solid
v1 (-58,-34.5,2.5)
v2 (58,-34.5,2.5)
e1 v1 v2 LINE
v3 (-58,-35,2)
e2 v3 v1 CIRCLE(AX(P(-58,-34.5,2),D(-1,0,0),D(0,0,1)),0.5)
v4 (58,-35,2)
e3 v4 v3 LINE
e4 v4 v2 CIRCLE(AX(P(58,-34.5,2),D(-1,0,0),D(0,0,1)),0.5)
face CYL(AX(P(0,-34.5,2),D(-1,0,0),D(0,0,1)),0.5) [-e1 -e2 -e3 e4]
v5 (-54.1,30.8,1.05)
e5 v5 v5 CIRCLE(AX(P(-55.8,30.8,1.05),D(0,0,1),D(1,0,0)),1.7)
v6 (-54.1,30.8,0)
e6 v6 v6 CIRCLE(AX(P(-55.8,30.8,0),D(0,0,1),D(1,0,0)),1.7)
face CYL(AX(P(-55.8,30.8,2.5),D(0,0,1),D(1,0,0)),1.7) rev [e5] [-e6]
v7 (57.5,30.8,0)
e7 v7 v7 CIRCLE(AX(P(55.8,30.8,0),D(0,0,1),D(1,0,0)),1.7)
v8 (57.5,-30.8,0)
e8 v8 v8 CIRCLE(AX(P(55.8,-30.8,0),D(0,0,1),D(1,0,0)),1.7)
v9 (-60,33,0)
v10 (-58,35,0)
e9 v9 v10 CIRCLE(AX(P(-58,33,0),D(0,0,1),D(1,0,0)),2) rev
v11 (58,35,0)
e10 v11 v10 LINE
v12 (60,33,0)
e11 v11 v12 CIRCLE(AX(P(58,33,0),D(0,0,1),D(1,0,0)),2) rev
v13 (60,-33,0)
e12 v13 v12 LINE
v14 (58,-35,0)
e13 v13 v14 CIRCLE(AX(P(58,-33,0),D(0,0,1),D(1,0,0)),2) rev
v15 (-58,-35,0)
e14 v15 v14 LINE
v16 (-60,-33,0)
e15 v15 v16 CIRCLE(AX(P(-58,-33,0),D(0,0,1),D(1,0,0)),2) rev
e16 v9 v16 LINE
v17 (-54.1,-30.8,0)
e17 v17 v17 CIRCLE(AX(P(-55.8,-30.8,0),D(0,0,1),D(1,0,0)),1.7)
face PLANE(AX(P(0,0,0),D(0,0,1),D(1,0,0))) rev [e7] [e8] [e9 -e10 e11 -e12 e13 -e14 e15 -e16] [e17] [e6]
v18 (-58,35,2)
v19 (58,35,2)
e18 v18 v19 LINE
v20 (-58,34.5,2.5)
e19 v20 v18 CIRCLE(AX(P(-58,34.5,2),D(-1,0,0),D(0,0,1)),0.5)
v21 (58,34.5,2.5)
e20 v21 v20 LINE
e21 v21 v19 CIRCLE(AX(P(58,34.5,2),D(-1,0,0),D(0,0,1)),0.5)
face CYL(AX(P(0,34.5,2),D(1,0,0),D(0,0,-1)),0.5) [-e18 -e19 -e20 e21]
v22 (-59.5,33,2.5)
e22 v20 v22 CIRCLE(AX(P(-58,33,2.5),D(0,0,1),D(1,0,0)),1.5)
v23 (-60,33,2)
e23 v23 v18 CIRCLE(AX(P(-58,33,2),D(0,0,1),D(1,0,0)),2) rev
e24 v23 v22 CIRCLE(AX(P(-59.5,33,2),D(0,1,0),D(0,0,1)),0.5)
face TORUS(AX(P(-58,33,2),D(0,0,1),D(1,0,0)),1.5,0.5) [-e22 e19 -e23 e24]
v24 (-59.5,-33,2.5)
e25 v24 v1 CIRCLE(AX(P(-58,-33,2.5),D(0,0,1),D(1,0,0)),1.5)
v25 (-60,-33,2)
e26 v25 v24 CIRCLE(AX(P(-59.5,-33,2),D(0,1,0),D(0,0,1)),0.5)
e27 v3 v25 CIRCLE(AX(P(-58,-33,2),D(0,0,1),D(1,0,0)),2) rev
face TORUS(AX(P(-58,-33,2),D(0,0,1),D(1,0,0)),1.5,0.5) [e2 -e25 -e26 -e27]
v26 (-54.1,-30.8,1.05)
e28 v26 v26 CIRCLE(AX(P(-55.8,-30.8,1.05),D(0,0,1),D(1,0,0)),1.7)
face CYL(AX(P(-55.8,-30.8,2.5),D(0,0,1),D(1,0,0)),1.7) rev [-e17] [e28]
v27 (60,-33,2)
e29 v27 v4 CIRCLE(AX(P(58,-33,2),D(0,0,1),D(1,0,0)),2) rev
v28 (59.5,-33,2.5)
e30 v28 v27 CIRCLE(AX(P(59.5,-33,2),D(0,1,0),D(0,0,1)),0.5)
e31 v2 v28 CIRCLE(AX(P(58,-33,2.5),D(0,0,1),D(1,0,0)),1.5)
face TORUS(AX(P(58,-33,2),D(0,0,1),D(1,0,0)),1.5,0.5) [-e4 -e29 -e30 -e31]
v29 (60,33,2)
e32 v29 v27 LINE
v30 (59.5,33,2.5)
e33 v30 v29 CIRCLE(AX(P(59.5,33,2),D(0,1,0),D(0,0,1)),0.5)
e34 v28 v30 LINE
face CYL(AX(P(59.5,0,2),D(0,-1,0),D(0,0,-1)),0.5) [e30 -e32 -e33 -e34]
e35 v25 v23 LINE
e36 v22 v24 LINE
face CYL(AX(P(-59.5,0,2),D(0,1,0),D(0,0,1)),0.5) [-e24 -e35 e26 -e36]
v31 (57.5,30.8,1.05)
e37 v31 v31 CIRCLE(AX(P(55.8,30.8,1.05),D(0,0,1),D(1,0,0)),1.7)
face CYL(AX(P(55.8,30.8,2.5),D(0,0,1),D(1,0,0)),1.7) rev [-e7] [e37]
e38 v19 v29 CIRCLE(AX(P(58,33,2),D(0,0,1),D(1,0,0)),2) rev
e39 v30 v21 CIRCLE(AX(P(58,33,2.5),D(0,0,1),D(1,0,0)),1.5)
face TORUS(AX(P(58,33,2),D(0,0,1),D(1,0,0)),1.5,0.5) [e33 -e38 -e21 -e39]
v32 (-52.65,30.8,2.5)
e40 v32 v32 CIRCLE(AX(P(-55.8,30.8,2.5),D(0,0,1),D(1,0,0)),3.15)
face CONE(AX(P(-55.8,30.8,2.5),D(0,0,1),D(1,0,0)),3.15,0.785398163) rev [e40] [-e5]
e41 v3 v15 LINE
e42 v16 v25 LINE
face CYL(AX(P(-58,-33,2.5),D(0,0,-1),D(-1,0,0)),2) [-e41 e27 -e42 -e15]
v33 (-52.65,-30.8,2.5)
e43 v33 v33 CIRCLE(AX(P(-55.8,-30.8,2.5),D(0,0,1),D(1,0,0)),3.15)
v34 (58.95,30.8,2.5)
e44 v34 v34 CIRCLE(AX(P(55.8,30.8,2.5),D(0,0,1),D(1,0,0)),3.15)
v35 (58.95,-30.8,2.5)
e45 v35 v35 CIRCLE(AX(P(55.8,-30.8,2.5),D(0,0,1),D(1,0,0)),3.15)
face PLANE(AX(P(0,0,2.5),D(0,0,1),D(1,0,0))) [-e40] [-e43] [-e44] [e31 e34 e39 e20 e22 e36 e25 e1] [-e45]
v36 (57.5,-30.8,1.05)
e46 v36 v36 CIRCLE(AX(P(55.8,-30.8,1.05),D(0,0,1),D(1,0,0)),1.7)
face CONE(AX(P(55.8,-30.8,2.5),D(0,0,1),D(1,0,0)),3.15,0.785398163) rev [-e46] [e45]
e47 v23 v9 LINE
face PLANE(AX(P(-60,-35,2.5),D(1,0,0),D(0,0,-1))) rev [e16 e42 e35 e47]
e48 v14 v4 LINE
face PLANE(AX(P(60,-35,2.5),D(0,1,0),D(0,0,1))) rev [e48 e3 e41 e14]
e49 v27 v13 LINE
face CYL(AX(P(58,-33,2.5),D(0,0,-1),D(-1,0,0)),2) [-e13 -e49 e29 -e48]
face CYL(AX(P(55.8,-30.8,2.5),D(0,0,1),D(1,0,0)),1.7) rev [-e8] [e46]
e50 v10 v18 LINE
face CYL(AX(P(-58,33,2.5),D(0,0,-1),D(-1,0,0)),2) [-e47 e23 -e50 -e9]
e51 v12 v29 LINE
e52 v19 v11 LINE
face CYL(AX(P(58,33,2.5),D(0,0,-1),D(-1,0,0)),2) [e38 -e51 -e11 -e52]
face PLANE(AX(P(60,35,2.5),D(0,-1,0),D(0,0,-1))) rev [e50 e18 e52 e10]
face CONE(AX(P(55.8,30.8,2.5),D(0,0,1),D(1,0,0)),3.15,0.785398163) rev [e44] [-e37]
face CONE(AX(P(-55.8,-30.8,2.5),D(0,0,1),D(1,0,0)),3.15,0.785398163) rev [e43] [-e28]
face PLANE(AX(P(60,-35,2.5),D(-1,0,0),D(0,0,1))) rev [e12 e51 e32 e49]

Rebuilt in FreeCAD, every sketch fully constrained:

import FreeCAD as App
import Part
import Sketcher

V = App.Vector
Q = App.Units.Quantity


def edges_at(feature, points):
    """Names of the edges that pass closest to the given points."""
    edges = feature.Shape.Edges
    near = lambda p: min(range(len(edges)), key=lambda i: edges[i].distToShape(Part.Vertex(*p))[0])
    return sorted({f"Edge{near(p) + 1}" for p in points})


def add_polygon(sketch, points):
    """Adds a closed chain of lines whose ends are joined by coincident constraints."""
    first, n = sketch.GeometryCount, len(points)
    for a, b in zip(points, points[1:] + points[:1]):
        sketch.addGeometry(Part.LineSegment(App.Vector(*a, 0), App.Vector(*b, 0)), False)
    for i in range(n):
        sketch.addConstraint(Sketcher.Constraint("Coincident", first + i, 2, first + (i + 1) % n, 1))

doc = App.newDocument("Part")
params = doc.addObject("Spreadsheet::Sheet", "Params")
for row, (alias, value) in enumerate([
    ("sketch1_width", "120 mm"),
    ("sketch1_height", "70 mm"),
    ("pad1_length", "2.5 mm"),
    ("fillet_radius", "2 mm"),
    ("sketch2_diameter", "3.4 mm"),
    ("hole_diameter", "3.4 mm"),
    ("hole_depth", "10 mm"),
    ("hole_csink_diameter", "6.3 mm"),
    ("fillet2_radius", "0.5 mm"),
], start=1):
    params.set(f"A{row}", alias)
    params.set(f"B{row}", "=" + value)
    params.setAlias(f"B{row}", alias)

body = doc.addObject("PartDesign::Body", "Body")

# Sketch on XY plane
sketch1 = body.newObject("Sketcher::SketchObject", "Sketch")
sketch1.AttachmentSupport = (doc.getObject("XY_Plane"), [""])
sketch1.MapMode = "FlatFace"
add_polygon(sketch1, [(-60, 35), (-60, -35), (60, -35), (60, 35)])  # lines 0-3
sketch1.addConstraint([
    Sketcher.Constraint("Vertical", 0),
    Sketcher.Constraint("Horizontal", 1),
    Sketcher.Constraint("Vertical", 2),
    Sketcher.Constraint("Horizontal", 3),
    Sketcher.Constraint("Symmetric", 0, 2, 2, 2, -1, 1),
    Sketcher.Constraint("DistanceX", 1, 1, 1, 2, Q("120 mm")),
    Sketcher.Constraint("DistanceY", 0, 2, 0, 1, Q("70 mm")),
])
sketch1.setExpression("Constraints[9]", "Params.sketch1_width")
sketch1.setExpression("Constraints[10]", "Params.sketch1_height")
pad1 = body.newObject("PartDesign::Pad", "Pad")
pad1.Profile = sketch1
pad1.setExpression("Length", "Params.pad1_length")
doc.recompute()

fillet = body.newObject("PartDesign::Fillet", "Fillet")
fillet.Base = (pad1, edges_at(pad1, [
    (-60, 35, 1.25),
    (60, 35, 1.25),
    (60, -35, 1.25),
    (-60, -35, 1.25),
]))
fillet.setExpression("Radius", "Params.fillet_radius")

# Sketch on XY plane
sketch2 = body.newObject("Sketcher::SketchObject", "Sketch001")
sketch2.AttachmentSupport = (doc.getObject("XY_Plane"), [""])
sketch2.MapMode = "FlatFace"
sketch2.AttachmentOffset = App.Placement(V(0, 0, 2.5), App.Rotation())
sketch2.addGeometry([
    Part.Circle(V(-55.8, 30.8, 0), V(0, 0, 1), 1.7),
    Part.Circle(V(55.8, 30.8, 0), V(0, 0, 1), 1.7),
    Part.Circle(V(55.8, -30.8, 0), V(0, 0, 1), 1.7),
    Part.Circle(V(-55.8, -30.8, 0), V(0, 0, 1), 1.7),
], False)
sketch2.addConstraint([
    Sketcher.Constraint("Equal", 0, 1),
    Sketcher.Constraint("Equal", 1, 2),
    Sketcher.Constraint("Equal", 2, 3),
    Sketcher.Constraint("Symmetric", 0, 3, 2, 3, -1, 1),
    Sketcher.Constraint("Symmetric", 1, 3, 3, 3, -1, 1),
    Sketcher.Constraint("Symmetric", 0, 3, 1, 3, -2),
    Sketcher.Constraint("Diameter", 0, Q("3.4 mm")),
    Sketcher.Constraint("DistanceX", 0, 3, -1, 1, Q("55.8 mm")),
    Sketcher.Constraint("DistanceY", -1, 1, 0, 3, Q("30.8 mm")),
])
sketch2.setExpression("Constraints[6]", "Params.sketch2_diameter")
doc.recompute()
hole = body.newObject("PartDesign::Hole", "Hole")
hole.Profile = sketch2
hole.ThreadType = "None"
hole.setExpression("Diameter", "Params.hole_diameter")
hole.DepthType = "Dimension"
hole.setExpression("Depth", "Params.hole_depth")
hole.DrillPoint = "Angled"
hole.DrillPointAngle = 118
hole.HoleCutType = "Countersink"
hole.setExpression("HoleCutDiameter", "Params.hole_csink_diameter")
hole.HoleCutCountersinkAngle = 90
doc.recompute()

fillet2 = body.newObject("PartDesign::Fillet", "Fillet001")
fillet2.Base = (hole, edges_at(hole, [
    (60, 0, 2.5),
    (0, -35, 2.5),
    (-60, 0, 2.5),
    (0, 35, 2.5),
    (59.414, 34.414, 2.5),
    (-59.414, 34.414, 2.5),
    (-59.414, -34.414, 2.5),
    (59.414, -34.414, 2.5),
]))
fillet2.setExpression("Radius", "Params.fillet2_radius")

doc.recompute()
